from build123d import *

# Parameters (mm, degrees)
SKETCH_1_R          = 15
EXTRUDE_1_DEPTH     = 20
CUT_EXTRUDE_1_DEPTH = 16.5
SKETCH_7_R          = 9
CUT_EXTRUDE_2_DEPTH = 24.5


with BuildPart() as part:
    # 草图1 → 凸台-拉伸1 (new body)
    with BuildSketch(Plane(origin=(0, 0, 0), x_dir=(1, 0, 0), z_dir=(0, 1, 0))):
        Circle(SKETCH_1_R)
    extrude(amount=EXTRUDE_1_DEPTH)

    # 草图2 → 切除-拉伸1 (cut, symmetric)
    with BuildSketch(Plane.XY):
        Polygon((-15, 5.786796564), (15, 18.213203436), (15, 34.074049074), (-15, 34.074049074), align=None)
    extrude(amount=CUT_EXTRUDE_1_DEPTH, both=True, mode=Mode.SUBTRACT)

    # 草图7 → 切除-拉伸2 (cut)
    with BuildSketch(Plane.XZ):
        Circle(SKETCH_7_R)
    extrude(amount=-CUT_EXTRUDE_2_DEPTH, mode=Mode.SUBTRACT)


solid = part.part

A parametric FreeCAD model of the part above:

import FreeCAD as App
import Part
import Sketcher
Q = App.Units.Quantity


def add_polygon(sketch, points):
    """Adds a closed chain of lines whose ends are joined by coincident constraints."""
    first, n = sketch.GeometryCount, len(points)
    for a, b in zip(points, points[1:] + points[:1]):
        sketch.addGeometry(Part.LineSegment(App.Vector(*a, 0), App.Vector(*b, 0)), False)
    for i in range(n):
        sketch.addConstraint(Sketcher.Constraint("Coincident", first + i, 2, first + (i + 1) % n, 1))

doc = App.newDocument("Part")
body = doc.addObject("PartDesign::Body", "Body")

sketch1 = body.newObject("Sketcher::SketchObject", "Sketch")
sketch1.AttachmentSupport = (doc.getObject("XZ_Plane"), [""])
sketch1.MapMode = "FlatFace"
sketch1.addGeometry(Part.Circle(App.Vector(0, 0, 0), App.Vector(0, 0, 1), 15), False)
sketch1.addConstraint([
    Sketcher.Constraint("Coincident", 0, 3, -1, 1),
    Sketcher.Constraint("Diameter", 0, Q("30 mm")),
])
pad1 = body.newObject("PartDesign::Pad", "Pad")
pad1.Profile = sketch1
pad1.Length = 20
pad1.Reversed = True

sketch2 = body.newObject("Sketcher::SketchObject", "Sketch001")
sketch2.AttachmentSupport = (doc.getObject("XY_Plane"), [""])
sketch2.MapMode = "FlatFace"
add_polygon(sketch2, [(-15, 6), (15, 18), (15, 34), (-15, 34)])
sketch2.addConstraint([
    Sketcher.Constraint("Vertical", 1),
    Sketcher.Constraint("Horizontal", 2),
    Sketcher.Constraint("Vertical", 3),
    Sketcher.Constraint("DistanceX", 2, 2, 2, 1, Q("30 mm")),
    Sketcher.Constraint("DistanceX", -1, 1, 0, 2, Q("15 mm")),
    Sketcher.Constraint("Angle", 0, Q("22.5 deg")),
    Sketcher.Constraint("DistanceY", 1, 1, 1, 2, Q("15.860846 mm")),
    Sketcher.Constraint("DistanceY", -1, 1, 1, 2, Q("34.074049 mm")),
])
pocket1 = body.newObject("PartDesign::Pocket", "Pocket")
pocket1.Profile = sketch2
pocket1.Length = 33
pocket1.Midplane = True

sketch3 = body.newObject("Sketcher::SketchObject", "Sketch002")
sketch3.AttachmentSupport = (doc.getObject("XZ_Plane"), [""])
sketch3.MapMode = "FlatFace"
sketch3.addGeometry(Part.Circle(App.Vector(0, 0, 0), App.Vector(0, 0, 1), 9), False)
sketch3.addConstraint([
    Sketcher.Constraint("Coincident", 0, 3, -1, 1),
    Sketcher.Constraint("Diameter", 0, Q("18 mm")),
])
pocket2 = body.newObject("PartDesign::Pocket", "Pocket001")
pocket2.Profile = sketch3
pocket2.Length = 24.5

doc.recompute()
